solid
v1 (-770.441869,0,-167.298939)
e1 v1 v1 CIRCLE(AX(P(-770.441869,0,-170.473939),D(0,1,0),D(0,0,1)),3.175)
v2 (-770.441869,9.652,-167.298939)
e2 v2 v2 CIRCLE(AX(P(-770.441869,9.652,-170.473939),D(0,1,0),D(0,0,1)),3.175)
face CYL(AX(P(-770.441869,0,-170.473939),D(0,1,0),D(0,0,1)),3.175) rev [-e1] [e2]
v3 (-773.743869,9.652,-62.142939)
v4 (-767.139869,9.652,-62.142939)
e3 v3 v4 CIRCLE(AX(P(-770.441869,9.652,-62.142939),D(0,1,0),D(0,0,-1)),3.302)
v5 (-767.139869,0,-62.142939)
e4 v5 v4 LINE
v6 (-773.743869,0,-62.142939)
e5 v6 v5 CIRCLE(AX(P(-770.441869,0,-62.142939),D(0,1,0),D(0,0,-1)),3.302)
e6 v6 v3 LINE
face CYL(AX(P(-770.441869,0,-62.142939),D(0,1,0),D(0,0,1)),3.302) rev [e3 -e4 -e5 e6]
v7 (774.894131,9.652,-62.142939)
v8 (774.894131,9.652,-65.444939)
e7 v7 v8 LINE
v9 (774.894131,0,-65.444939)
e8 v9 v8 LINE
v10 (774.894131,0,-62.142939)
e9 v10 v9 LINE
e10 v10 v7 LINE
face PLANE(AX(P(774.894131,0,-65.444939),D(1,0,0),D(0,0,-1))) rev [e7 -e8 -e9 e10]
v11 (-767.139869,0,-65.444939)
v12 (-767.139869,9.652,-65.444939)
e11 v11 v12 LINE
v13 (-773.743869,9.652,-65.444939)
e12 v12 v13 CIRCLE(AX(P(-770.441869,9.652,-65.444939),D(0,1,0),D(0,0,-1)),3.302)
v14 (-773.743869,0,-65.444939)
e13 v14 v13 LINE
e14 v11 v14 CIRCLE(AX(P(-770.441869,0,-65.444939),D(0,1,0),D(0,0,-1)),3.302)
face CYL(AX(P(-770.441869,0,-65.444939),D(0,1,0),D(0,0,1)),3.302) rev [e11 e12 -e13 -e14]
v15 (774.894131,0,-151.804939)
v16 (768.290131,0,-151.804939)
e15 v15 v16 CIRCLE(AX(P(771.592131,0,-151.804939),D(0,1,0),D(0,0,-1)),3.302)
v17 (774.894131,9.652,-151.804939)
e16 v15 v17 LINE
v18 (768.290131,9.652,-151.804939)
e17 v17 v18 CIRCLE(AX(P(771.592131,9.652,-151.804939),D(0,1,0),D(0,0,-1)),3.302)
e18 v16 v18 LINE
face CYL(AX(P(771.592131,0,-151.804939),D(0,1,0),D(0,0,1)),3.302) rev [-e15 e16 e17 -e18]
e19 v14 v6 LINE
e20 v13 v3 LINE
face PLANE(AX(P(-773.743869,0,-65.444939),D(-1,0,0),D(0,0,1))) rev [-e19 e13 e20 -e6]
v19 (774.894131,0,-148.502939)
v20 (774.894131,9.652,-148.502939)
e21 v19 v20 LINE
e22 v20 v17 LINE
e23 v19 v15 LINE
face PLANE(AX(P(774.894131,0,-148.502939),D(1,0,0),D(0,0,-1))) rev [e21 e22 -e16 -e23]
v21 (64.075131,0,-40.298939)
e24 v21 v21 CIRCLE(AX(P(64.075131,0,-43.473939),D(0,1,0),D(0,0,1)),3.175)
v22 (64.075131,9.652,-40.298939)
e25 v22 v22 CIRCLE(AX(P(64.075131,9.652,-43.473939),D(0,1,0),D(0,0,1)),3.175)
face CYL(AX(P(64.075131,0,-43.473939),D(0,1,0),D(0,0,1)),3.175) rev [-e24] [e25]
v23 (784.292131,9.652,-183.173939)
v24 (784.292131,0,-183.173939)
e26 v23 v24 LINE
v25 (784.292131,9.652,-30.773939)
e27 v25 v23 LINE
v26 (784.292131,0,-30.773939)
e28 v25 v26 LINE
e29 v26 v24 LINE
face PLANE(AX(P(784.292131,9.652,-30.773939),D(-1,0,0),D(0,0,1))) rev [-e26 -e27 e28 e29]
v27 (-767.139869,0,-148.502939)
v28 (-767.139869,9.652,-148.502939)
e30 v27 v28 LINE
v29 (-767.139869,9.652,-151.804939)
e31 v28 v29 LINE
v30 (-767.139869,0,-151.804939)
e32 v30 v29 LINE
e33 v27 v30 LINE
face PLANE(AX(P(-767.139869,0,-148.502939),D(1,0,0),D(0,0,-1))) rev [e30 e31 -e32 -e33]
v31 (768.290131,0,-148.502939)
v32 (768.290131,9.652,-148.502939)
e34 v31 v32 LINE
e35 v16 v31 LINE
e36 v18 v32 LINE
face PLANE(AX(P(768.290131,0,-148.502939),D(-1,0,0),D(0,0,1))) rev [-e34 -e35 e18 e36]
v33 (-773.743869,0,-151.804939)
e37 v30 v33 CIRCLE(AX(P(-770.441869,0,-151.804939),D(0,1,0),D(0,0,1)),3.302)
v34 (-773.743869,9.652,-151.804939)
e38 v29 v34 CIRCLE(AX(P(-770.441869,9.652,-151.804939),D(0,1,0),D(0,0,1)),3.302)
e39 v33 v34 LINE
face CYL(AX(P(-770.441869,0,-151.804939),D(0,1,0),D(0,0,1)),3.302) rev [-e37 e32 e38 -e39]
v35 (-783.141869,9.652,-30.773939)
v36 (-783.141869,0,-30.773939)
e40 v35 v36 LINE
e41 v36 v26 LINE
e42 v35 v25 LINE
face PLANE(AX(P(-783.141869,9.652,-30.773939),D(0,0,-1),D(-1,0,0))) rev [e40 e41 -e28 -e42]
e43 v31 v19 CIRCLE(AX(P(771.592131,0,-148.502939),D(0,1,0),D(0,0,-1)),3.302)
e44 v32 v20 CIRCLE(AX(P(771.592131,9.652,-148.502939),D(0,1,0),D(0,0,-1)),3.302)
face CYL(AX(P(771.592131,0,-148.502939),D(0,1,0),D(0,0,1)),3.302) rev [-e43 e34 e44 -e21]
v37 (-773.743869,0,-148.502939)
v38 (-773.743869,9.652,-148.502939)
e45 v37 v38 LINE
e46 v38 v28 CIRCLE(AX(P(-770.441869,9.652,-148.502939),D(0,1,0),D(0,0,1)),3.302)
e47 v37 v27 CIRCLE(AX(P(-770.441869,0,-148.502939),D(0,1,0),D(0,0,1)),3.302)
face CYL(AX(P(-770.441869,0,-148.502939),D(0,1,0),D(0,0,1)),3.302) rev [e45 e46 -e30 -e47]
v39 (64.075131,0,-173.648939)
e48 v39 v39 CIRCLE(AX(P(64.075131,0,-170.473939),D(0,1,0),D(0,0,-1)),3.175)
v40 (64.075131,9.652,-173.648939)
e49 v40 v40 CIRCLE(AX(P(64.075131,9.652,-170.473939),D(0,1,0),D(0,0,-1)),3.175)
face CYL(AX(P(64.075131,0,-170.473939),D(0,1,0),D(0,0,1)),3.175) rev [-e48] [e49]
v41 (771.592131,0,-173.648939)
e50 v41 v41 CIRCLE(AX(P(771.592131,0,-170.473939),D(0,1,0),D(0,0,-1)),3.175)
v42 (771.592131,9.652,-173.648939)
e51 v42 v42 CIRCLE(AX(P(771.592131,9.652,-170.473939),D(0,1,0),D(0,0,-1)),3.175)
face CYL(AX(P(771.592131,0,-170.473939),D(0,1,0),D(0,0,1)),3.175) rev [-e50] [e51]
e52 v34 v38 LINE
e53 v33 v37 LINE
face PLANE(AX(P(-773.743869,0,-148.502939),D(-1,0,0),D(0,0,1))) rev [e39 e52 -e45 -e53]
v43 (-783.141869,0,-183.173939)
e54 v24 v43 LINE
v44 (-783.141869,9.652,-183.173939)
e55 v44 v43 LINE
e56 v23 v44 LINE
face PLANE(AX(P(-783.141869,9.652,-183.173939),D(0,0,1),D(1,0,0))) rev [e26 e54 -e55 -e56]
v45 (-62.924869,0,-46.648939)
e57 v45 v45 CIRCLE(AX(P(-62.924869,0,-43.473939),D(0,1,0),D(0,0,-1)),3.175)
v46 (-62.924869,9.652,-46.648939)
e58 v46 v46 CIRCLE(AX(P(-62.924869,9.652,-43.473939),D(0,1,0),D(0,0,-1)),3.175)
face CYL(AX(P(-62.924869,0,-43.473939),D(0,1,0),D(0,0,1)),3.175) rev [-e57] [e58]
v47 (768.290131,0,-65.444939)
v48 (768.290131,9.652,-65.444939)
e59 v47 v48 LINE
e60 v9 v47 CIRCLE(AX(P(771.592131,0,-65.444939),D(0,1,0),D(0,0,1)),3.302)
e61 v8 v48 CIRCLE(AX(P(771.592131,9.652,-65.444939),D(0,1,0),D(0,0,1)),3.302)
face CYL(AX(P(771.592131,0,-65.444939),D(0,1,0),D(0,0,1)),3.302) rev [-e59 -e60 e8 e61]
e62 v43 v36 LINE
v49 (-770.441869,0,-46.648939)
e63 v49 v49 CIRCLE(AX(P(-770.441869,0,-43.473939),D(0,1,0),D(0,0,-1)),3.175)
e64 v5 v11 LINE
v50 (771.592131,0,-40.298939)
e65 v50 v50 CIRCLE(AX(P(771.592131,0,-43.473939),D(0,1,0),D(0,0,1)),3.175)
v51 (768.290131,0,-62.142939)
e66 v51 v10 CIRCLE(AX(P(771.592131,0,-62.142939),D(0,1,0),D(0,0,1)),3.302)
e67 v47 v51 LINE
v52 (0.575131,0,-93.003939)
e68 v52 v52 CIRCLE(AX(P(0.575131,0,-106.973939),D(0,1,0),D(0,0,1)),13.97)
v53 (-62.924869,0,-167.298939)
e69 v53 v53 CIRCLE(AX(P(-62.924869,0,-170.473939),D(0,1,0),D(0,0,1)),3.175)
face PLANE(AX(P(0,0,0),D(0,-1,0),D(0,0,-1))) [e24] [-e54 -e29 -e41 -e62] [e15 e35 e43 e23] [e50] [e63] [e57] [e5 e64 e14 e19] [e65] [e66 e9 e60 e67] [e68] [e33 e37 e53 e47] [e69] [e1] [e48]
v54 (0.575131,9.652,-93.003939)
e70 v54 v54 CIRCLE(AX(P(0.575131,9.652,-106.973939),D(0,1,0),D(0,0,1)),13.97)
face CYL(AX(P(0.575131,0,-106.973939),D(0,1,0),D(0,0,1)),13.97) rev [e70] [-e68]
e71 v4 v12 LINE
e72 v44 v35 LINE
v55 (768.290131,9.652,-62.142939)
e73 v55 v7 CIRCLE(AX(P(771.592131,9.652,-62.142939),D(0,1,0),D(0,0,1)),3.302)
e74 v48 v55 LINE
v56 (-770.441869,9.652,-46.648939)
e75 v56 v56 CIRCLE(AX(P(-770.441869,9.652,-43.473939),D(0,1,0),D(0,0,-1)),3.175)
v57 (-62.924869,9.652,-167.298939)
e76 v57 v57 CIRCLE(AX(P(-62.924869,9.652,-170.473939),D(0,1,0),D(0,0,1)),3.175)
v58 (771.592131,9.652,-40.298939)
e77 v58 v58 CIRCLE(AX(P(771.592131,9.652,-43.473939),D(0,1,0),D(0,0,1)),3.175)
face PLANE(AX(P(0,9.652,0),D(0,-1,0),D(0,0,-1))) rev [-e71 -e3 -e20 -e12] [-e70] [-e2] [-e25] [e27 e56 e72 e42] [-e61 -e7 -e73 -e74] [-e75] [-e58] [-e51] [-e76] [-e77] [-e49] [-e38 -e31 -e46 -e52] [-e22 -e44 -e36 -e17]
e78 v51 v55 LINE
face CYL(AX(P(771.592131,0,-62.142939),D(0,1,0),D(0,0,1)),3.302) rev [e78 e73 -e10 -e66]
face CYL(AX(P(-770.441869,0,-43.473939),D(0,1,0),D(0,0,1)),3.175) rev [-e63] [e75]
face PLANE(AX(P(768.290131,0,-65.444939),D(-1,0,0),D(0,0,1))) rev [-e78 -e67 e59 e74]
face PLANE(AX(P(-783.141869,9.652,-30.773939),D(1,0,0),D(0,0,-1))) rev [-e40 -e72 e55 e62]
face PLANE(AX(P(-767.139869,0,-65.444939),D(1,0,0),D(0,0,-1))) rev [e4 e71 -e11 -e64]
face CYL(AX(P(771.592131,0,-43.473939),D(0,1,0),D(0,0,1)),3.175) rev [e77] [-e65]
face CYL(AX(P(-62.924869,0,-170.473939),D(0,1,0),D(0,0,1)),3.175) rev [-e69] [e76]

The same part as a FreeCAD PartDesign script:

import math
import FreeCAD as App
import Part
import Sketcher

V = App.Vector
Q = App.Units.Quantity


def add_polygon(sketch, points):
    """Adds a closed chain of lines whose ends are joined by coincident constraints."""
    first, n = sketch.GeometryCount, len(points)
    for a, b in zip(points, points[1:] + points[:1]):
        sketch.addGeometry(Part.LineSegment(App.Vector(*a, 0), App.Vector(*b, 0)), False)
    for i in range(n):
        sketch.addConstraint(Sketcher.Constraint("Coincident", first + i, 2, first + (i + 1) % n, 1))

doc = App.newDocument("Part")
body = doc.addObject("PartDesign::Body", "Body")

# Sketch on XZ plane
sketch1 = doc.addObject("Sketcher::SketchObject", "Sketch")
body.addObject(sketch1)
sketch1.AttachmentSupport = (doc.XZ_Plane, [""])
sketch1.MapMode = "FlatFace"
add_polygon(sketch1, [(-783, -183), (-783, -31), (784, -31), (784, -183)])  # lines 0-3
sketch1.addConstraint([
    Sketcher.Constraint("Vertical", 0),
    Sketcher.Constraint("Horizontal", 1),
    Sketcher.Constraint("Vertical", 2),
    Sketcher.Constraint("Horizontal", 3),
    Sketcher.Constraint("DistanceY", 0, 1, 0, 2, Q("6 in")),
    Sketcher.Constraint("DistanceX", 1, 1, 1, 2, Q("61.71 in")),
    Sketcher.Constraint("DistanceX", 0, 2, -1, 1, 783.141869),
    Sketcher.Constraint("DistanceY", 0, 2, -1, 1, 30.773939),
])
pad1 = doc.addObject("PartDesign::Pad", "Pad")
body.addObject(pad1)
pad1.Profile = sketch1
pad1.Length = Q("0.38 in")
pad1.Reversed = True

# Sketch on XZ plane
sketch2 = doc.addObject("Sketcher::SketchObject", "Sketch001")
body.addObject(sketch2)
sketch2.AttachmentSupport = (doc.XZ_Plane, [""])
sketch2.MapMode = "FlatFace"
sketch2.AttachmentOffset = App.Placement(V(0, 0, -0.38 * 25.4), App.Rotation())
sketch2.addGeometry([
    Part.Circle(V(-770.4, -170.5, 0), V(0, 0, 1), 3.2),  # 0
    Part.Circle(V(-770.4, -43.5, 0), V(0, 0, 1), 3.2),  # 1
    Part.Circle(V(771.6, -43.5, 0), V(0, 0, 1), 3.2),  # 2
    Part.Circle(V(771.6, -170.5, 0), V(0, 0, 1), 3.2),  # 3
    Part.Circle(V(0.6, -107, 0), V(0, 0, 1), 14),  # 4
    Part.Circle(V(-62.9, -170.5, 0), V(0, 0, 1), 3.2),  # 5
    Part.Circle(V(-62.9, -43.5, 0), V(0, 0, 1), 3.2),  # 6
    Part.Circle(V(64.1, -43.5, 0), V(0, 0, 1), 3.2),  # 7
    Part.Circle(V(64.1, -170.5, 0), V(0, 0, 1), 3.2),  # 8
    Part.LineSegment(V(-773.7, -151.8, 0), V(-773.7, -148.5, 0)),  # 9
    Part.ArcOfCircle(Part.Circle(V(-770.4, -148.5, 0), V(0, 0, 1), 3.3), math.radians(0), math.radians(180)),  # 10
    Part.LineSegment(V(-767.1, -148.5, 0), V(-767.1, -151.8, 0)),  # 11
    Part.ArcOfCircle(Part.Circle(V(-770.4, -151.8, 0), V(0, 0, 1), 3.3), math.radians(180), math.radians(360)),  # 12
    Part.LineSegment(V(-773.7, -65.4, 0), V(-773.7, -62.1, 0)),  # 13
    Part.ArcOfCircle(Part.Circle(V(-770.4, -62.1, 0), V(0, 0, 1), 3.3), math.radians(0), math.radians(180)),  # 14
    Part.LineSegment(V(-767.1, -62.1, 0), V(-767.1, -65.4, 0)),  # 15
    Part.ArcOfCircle(Part.Circle(V(-770.4, -65.4, 0), V(0, 0, 1), 3.3), math.radians(180), math.radians(360)),  # 16
    Part.LineSegment(V(774.9, -62.1, 0), V(774.9, -65.4, 0)),  # 17
    Part.ArcOfCircle(Part.Circle(V(771.6, -65.4, 0), V(0, 0, 1), 3.3), math.radians(180), math.radians(360)),  # 18
    Part.LineSegment(V(768.3, -65.4, 0), V(768.3, -62.1, 0)),  # 19
    Part.ArcOfCircle(Part.Circle(V(771.6, -62.1, 0), V(0, 0, 1), 3.3), math.radians(0), math.radians(180)),  # 20
    Part.LineSegment(V(774.9, -148.5, 0), V(774.9, -151.8, 0)),  # 21
    Part.ArcOfCircle(Part.Circle(V(771.6, -151.8, 0), V(0, 0, 1), 3.3), math.radians(180), math.radians(360)),  # 22
    Part.LineSegment(V(768.3, -151.8, 0), V(768.3, -148.5, 0)),  # 23
    Part.ArcOfCircle(Part.Circle(V(771.6, -148.5, 0), V(0, 0, 1), 3.3), math.radians(0), math.radians(180)),  # 24
], False)
sketch2.addConstraint([
    Sketcher.Constraint("Tangent", 9, 2, 10, 2),
    Sketcher.Constraint("Tangent", 10, 1, 11, 1),
    Sketcher.Constraint("Tangent", 11, 2, 12, 2),
    Sketcher.Constraint("Tangent", 12, 1, 9, 1),
    Sketcher.Constraint("Tangent", 13, 2, 14, 2),
    Sketcher.Constraint("Tangent", 14, 1, 15, 1),
    Sketcher.Constraint("Tangent", 15, 2, 16, 2),
    Sketcher.Constraint("Tangent", 16, 1, 13, 1),
    Sketcher.Constraint("Tangent", 17, 2, 18, 2),
    Sketcher.Constraint("Tangent", 18, 1, 19, 1),
    Sketcher.Constraint("Tangent", 19, 2, 20, 2),
    Sketcher.Constraint("Tangent", 20, 1, 17, 1),
    Sketcher.Constraint("Tangent", 21, 2, 22, 2),
    Sketcher.Constraint("Tangent", 22, 1, 23, 1),
    Sketcher.Constraint("Tangent", 23, 2, 24, 2),
    Sketcher.Constraint("Tangent", 24, 1, 21, 1),
    Sketcher.Constraint("Vertical", 9),
    Sketcher.Constraint("Vertical", 11),
    Sketcher.Constraint("Vertical", 13),
    Sketcher.Constraint("Vertical", 15),
    Sketcher.Constraint("Vertical", 17),
    Sketcher.Constraint("Vertical", 19),
    Sketcher.Constraint("Vertical", 21),
    Sketcher.Constraint("Vertical", 23),
    Sketcher.Constraint("Equal", 0, 1),
    Sketcher.Constraint("Equal", 1, 2),
    Sketcher.Constraint("Equal", 2, 3),
    Sketcher.Constraint("Equal", 3, 5),
    Sketcher.Constraint("Equal", 5, 6),
    Sketcher.Constraint("Equal", 6, 7),
    Sketcher.Constraint("Equal", 7, 8),
    Sketcher.Constraint("Equal", 12, 14),
    Sketcher.Constraint("Equal", 16, 18),
    Sketcher.Constraint("Equal", 20, 22),
    Sketcher.Constraint("Horizontal", 1, 3, 2, 3),
    Sketcher.Constraint("Horizontal", 0, 3, 3, 3),
    Sketcher.Constraint("Horizontal", 3, 3, 5, 3),
    Sketcher.Constraint("Horizontal", 2, 3, 6, 3),
    Sketcher.Constraint("Horizontal", 6, 3, 7, 3),
    Sketcher.Constraint("Horizontal", 5, 3, 8, 3),
    Sketcher.Constraint("Horizontal", 16, 3, 18, 3),
    Sketcher.Constraint("Horizontal", 14, 3, 20, 3),
    Sketcher.Constraint("Horizontal", 12, 3, 22, 3),
    Sketcher.Constraint("Horizontal", 10, 3, 24, 3),
    Sketcher.Constraint("Vertical", 0, 3, 1, 3),
    Sketcher.Constraint("Vertical", 2, 3, 3, 3),
    Sketcher.Constraint("Vertical", 5, 3, 6, 3),
    Sketcher.Constraint("Vertical", 7, 3, 8, 3),
    Sketcher.Constraint("Vertical", 1, 3, 10, 3),
    Sketcher.Constraint("Vertical", 12, 3, 14, 3),
    Sketcher.Constraint("Vertical", 3, 3, 18, 3),
    Sketcher.Constraint("Vertical", 20, 3, 22, 3),
    Sketcher.Constraint("Equal", 11, 13),
    Sketcher.Constraint("Diameter", 4, Q("1.1 in")),
    Sketcher.Constraint("Diameter", 0, Q("0.25 in")),
    Sketcher.Constraint("Radius", 10, Q("0.13 in")),
    Sketcher.Constraint("DistanceY", 0, 3, 1, 3, Q("5 in")),
    Sketcher.Constraint("DistanceX", 6, 3, 7, 3, Q("5 in")),
    Sketcher.Constraint("DistanceY", 9, 1, 9, 2, Q("0.13 in")),
    Sketcher.Constraint("DistanceY", 4, 3, 2, 3, Q("2.5 in")),
    Sketcher.Constraint("DistanceX", 5, 3, 4, 3, Q("2.5 in")),
    Sketcher.Constraint("DistanceY", 10, 3, 14, 3, Q("3.4 in")),
    Sketcher.Constraint("DistanceX", 1, 3, 2, 3, Q("60.71 in")),
    Sketcher.Constraint("DistanceX", 4, 3, 2, 3, Q("30.355 in")),
    Sketcher.Constraint("DistanceY", 0, 3, 10, 3, Q("0.865 in")),
    Sketcher.Constraint("DistanceX", 0, 3, -1, 1, 770.441869),
    Sketcher.Constraint("DistanceY", 0, 3, -1, 1, 170.473939),
])
pocket1 = doc.addObject("PartDesign::Pocket", "Pocket")
body.addObject(pocket1)
pocket1.Profile = sketch2
pocket1.Type = "ThroughAll"
pocket1.Reversed = True

doc.recompute()
